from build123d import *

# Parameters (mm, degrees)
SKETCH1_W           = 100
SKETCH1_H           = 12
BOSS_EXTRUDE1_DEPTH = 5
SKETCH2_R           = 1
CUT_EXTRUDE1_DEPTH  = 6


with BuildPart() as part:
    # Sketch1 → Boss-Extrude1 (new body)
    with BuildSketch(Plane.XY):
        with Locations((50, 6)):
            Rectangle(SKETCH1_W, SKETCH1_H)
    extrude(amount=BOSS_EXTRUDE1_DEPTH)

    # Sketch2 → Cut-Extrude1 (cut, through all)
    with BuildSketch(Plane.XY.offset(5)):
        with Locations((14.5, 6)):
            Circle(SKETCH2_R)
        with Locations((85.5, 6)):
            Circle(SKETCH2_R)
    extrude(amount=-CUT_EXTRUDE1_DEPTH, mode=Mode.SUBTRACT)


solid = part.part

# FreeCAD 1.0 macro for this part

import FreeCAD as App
import Part
import Sketcher

V = App.Vector
Q = App.Units.Quantity

doc = App.newDocument("Part")
body = doc.addObject("PartDesign::Body", "Body")

# Sketch on XY plane
sketch1 = body.newObject("Sketcher::SketchObject", "Sketch")
sketch1.AttachmentSupport = (doc.getObject("XY_Plane"), [""])
sketch1.MapMode = "FlatFace"
sketch1.addGeometry(Part.LineSegment(V(0, 12, 0), V(0, 0, 0)), False)
sketch1.addGeometry(Part.LineSegment(V(0, 0, 0), V(100, 0, 0)), False)
sketch1.addGeometry(Part.LineSegment(V(100, 0, 0), V(100, 12, 0)), False)
sketch1.addGeometry(Part.LineSegment(V(100, 12, 0), V(0, 12, 0)), False)
sketch1.addConstraint(Sketcher.Constraint("Coincident", 0, 2, 1, 1))
sketch1.addConstraint(Sketcher.Constraint("Coincident", 1, 2, 2, 1))
sketch1.addConstraint(Sketcher.Constraint("Coincident", 2, 2, 3, 1))
sketch1.addConstraint(Sketcher.Constraint("Coincident", 3, 2, 0, 1))
sketch1.addConstraint(Sketcher.Constraint("Vertical", 0))
sketch1.addConstraint(Sketcher.Constraint("Horizontal", 1))
sketch1.addConstraint(Sketcher.Constraint("Vertical", 2))
sketch1.addConstraint(Sketcher.Constraint("Horizontal", 3))
sketch1.addConstraint(Sketcher.Constraint("Coincident", 0, 2, -1, 1))
sketch1.addConstraint(Sketcher.Constraint("DistanceX", 1, 1, 1, 2, Q("100 mm")))
sketch1.addConstraint(Sketcher.Constraint("DistanceY", 0, 2, 0, 1, Q("12 mm")))
pad1 = body.newObject("PartDesign::Pad", "Pad")
pad1.Profile = sketch1
pad1.Length = 5

# Sketch on XY plane
sketch2 = body.newObject("Sketcher::SketchObject", "Sketch001")
sketch2.AttachmentSupport = (doc.getObject("XY_Plane"), [""])
sketch2.MapMode = "FlatFace"
sketch2.AttachmentOffset = App.Placement(V(0, 0, 5), App.Rotation())
sketch2.addGeometry(Part.Circle(V(14.5, 6, 0), V(0, 0, 1), 1), False)
sketch2.addGeometry(Part.Circle(V(85.5, 6, 0), V(0, 0, 1), 1), False)
sketch2.addConstraint(Sketcher.Constraint("Equal", 0, 1))
sketch2.addConstraint(Sketcher.Constraint("Horizontal", 0, 3, 1, 3))
sketch2.addConstraint(Sketcher.Constraint("Diameter", 0, Q("2 mm")))
sketch2.addConstraint(Sketcher.Constraint("DistanceY", -1, 1, 0, 3, Q("6 mm")))
sketch2.addConstraint(Sketcher.Constraint("DistanceX", 0, 3, 1, 3, Q("71 mm")))
sketch2.addConstraint(Sketcher.Constraint("DistanceX", -1, 1, 0, 3, Q("14.5 mm")))
pocket1 = body.newObject("PartDesign::Pocket", "Pocket")
pocket1.Profile = sketch2
pocket1.Type = "ThroughAll"

doc.recompute()
